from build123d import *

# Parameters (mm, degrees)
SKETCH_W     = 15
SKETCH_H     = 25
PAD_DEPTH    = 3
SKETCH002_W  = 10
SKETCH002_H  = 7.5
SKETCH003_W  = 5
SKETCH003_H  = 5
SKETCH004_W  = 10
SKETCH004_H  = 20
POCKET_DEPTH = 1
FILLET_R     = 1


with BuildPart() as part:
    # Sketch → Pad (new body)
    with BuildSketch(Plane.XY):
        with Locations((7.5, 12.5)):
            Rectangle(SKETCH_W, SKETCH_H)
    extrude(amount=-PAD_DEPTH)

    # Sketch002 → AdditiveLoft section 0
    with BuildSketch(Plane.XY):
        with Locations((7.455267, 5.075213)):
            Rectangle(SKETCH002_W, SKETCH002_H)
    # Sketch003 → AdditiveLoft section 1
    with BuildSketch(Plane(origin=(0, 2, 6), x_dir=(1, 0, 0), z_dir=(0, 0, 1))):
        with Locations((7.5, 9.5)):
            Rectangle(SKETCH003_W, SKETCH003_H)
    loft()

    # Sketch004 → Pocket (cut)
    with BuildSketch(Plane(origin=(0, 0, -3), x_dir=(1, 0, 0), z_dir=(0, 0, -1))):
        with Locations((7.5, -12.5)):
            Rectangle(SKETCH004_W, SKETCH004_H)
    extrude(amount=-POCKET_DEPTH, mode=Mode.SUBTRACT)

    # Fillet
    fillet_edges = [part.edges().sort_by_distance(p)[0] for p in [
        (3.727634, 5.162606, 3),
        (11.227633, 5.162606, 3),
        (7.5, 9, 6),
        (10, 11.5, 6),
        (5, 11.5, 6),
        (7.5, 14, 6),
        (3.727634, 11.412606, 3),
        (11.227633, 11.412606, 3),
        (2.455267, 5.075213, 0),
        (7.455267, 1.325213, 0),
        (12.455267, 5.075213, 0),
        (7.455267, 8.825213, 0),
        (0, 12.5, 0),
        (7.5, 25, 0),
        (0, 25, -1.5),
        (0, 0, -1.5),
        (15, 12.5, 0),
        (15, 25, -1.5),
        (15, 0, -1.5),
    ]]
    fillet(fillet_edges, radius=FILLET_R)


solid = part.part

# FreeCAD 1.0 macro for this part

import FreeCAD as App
import Part
import Sketcher


def edges_at(feature, points):
    """Names of the edges that pass closest to the given points."""
    edges = feature.Shape.Edges
    near = lambda p: min(range(len(edges)), key=lambda i: edges[i].distToShape(Part.Vertex(*p))[0])
    return sorted({f"Edge{near(p) + 1}" for p in points})

doc = App.newDocument("Part")
params = doc.addObject("Spreadsheet::Sheet", "Params")
for row, (alias, value) in enumerate([
    ("sketch1_width", "15 mm"),
    ("sketch1_height", "25 mm"),
    ("pad1_length", "3 mm"),
    ("sketch2_width", "10 mm"),
    ("sketch2_height", "7.5 mm"),
    ("sketch3_width", "5 mm"),
    ("sketch4_width", "10 mm"),
    ("sketch4_height", "20 mm"),
    ("pocket1_length", "1 mm"),
    ("fillet_radius", "1 mm"),
], start=1):
    params.set(f"A{row}", alias)
    params.set(f"B{row}", "=" + value)
    params.setAlias(f"B{row}", alias)

body = doc.addObject("PartDesign::Body", "Body")

# Sketch on XY plane
sketch1 = body.newObject("Sketcher::SketchObject", "Sketch")
sketch1.AttachmentSupport = (doc.getObject("XY_Plane"), [""])
sketch1.MapMode = "FlatFace"
sketch1.addGeometry(Part.LineSegment(App.Vector(0, 25, 0), App.Vector(0, 0, 0)), False)
sketch1.addGeometry(Part.LineSegment(App.Vector(0, 0, 0), App.Vector(15, 0, 0)), False)
sketch1.addGeometry(Part.LineSegment(App.Vector(15, 0, 0), App.Vector(15, 25, 0)), False)
sketch1.addGeometry(Part.LineSegment(App.Vector(15, 25, 0), App.Vector(0, 25, 0)), False)
sketch1.addConstraint(Sketcher.Constraint("Coincident", 0, 2, 1, 1))
sketch1.addConstraint(Sketcher.Constraint("Coincident", 1, 2, 2, 1))
sketch1.addConstraint(Sketcher.Constraint("Coincident", 2, 2, 3, 1))
sketch1.addConstraint(Sketcher.Constraint("Coincident", 3, 2, 0, 1))
sketch1.addConstraint(Sketcher.Constraint("Vertical", 0))
sketch1.addConstraint(Sketcher.Constraint("Horizontal", 1))
sketch1.addConstraint(Sketcher.Constraint("Vertical", 2))
sketch1.addConstraint(Sketcher.Constraint("Horizontal", 3))
sketch1.addConstraint(Sketcher.Constraint("Coincident", 0, 2, -1, 1))
sketch1.addConstraint(Sketcher.Constraint("DistanceX", 1, 1, 1, 2, 15.0))
sketch1.addConstraint(Sketcher.Constraint("DistanceY", 0, 2, 0, 1, 25.0))
sketch1.setExpression("Constraints[9]", "Params.sketch1_width")
sketch1.setExpression("Constraints[10]", "Params.sketch1_height")
pad1 = body.newObject("PartDesign::Pad", "Pad")
pad1.Profile = sketch1
pad1.setExpression("Length", "Params.pad1_length")
pad1.Reversed = True

# Sketch on XY plane
sketch2 = body.newObject("Sketcher::SketchObject", "Sketch001")
sketch2.AttachmentSupport = (doc.getObject("XY_Plane"), [""])
sketch2.MapMode = "FlatFace"
sketch2.addGeometry(Part.LineSegment(App.Vector(2, 9, 0), App.Vector(2, 1, 0)), False)
sketch2.addGeometry(Part.LineSegment(App.Vector(2, 1, 0), App.Vector(12, 1, 0)), False)
sketch2.addGeometry(Part.LineSegment(App.Vector(12, 1, 0), App.Vector(12, 9, 0)), False)
sketch2.addGeometry(Part.LineSegment(App.Vector(12, 9, 0), App.Vector(2, 9, 0)), False)
sketch2.addConstraint(Sketcher.Constraint("Coincident", 0, 2, 1, 1))
sketch2.addConstraint(Sketcher.Constraint("Coincident", 1, 2, 2, 1))
sketch2.addConstraint(Sketcher.Constraint("Coincident", 2, 2, 3, 1))
sketch2.addConstraint(Sketcher.Constraint("Coincident", 3, 2, 0, 1))
sketch2.addConstraint(Sketcher.Constraint("Vertical", 0))
sketch2.addConstraint(Sketcher.Constraint("Horizontal", 1))
sketch2.addConstraint(Sketcher.Constraint("Vertical", 2))
sketch2.addConstraint(Sketcher.Constraint("Horizontal", 3))
sketch2.addConstraint(Sketcher.Constraint("DistanceX", 1, 1, 1, 2, 10.0))
sketch2.addConstraint(Sketcher.Constraint("DistanceY", 0, 2, 0, 1, 7.5))
sketch2.addConstraint(Sketcher.Constraint("DistanceX", -1, 1, 0, 2, 2.455267))
sketch2.addConstraint(Sketcher.Constraint("DistanceY", -1, 1, 0, 2, 1.325213))
sketch2.setExpression("Constraints[8]", "Params.sketch2_width")
sketch2.setExpression("Constraints[9]", "Params.sketch2_height")

# Sketch on XY plane
sketch3 = body.newObject("Sketcher::SketchObject", "Sketch002")
sketch3.AttachmentSupport = (doc.getObject("XY_Plane"), [""])
sketch3.MapMode = "FlatFace"
sketch3.AttachmentOffset = App.Placement(App.Vector(0, 0, 6), App.Rotation())
sketch3.addGeometry(Part.LineSegment(App.Vector(5, 14, 0), App.Vector(5, 9, 0)), False)
sketch3.addGeometry(Part.LineSegment(App.Vector(5, 9, 0), App.Vector(10, 9, 0)), False)
sketch3.addGeometry(Part.LineSegment(App.Vector(10, 9, 0), App.Vector(10, 14, 0)), False)
sketch3.addGeometry(Part.LineSegment(App.Vector(10, 14, 0), App.Vector(5, 14, 0)), False)
sketch3.addConstraint(Sketcher.Constraint("Coincident", 0, 2, 1, 1))
sketch3.addConstraint(Sketcher.Constraint("Coincident", 1, 2, 2, 1))
sketch3.addConstraint(Sketcher.Constraint("Coincident", 2, 2, 3, 1))
sketch3.addConstraint(Sketcher.Constraint("Coincident", 3, 2, 0, 1))
sketch3.addConstraint(Sketcher.Constraint("Vertical", 0))
sketch3.addConstraint(Sketcher.Constraint("Horizontal", 1))
sketch3.addConstraint(Sketcher.Constraint("Vertical", 2))
sketch3.addConstraint(Sketcher.Constraint("Horizontal", 3))
sketch3.addConstraint(Sketcher.Constraint("Equal", 3, 0))
sketch3.addConstraint(Sketcher.Constraint("DistanceX", 1, 1, 1, 2, 5.0))
sketch3.addConstraint(Sketcher.Constraint("DistanceX", -1, 1, 0, 2, 5.0))
sketch3.addConstraint(Sketcher.Constraint("DistanceY", -1, 1, 0, 2, 9.0))
sketch3.setExpression("Constraints[9]", "Params.sketch3_width")

additiveloft = body.newObject("PartDesign::AdditiveLoft", "AdditiveLoft")
additiveloft.Profile = sketch2
additiveloft.Sections = [sketch3]

# Sketch on XY plane
sketch4 = body.newObject("Sketcher::SketchObject", "Sketch003")
sketch4.AttachmentSupport = (doc.getObject("XY_Plane"), [""])
sketch4.MapMode = "FlatFace"
sketch4.AttachmentOffset = App.Placement(App.Vector(0, 0, -3), App.Rotation())
sketch4.addGeometry(Part.LineSegment(App.Vector(2, 2, 0), App.Vector(2, 22, 0)), False)
sketch4.addGeometry(Part.LineSegment(App.Vector(2, 22, 0), App.Vector(12, 22, 0)), False)
sketch4.addGeometry(Part.LineSegment(App.Vector(12, 22, 0), App.Vector(12, 2, 0)), False)
sketch4.addGeometry(Part.LineSegment(App.Vector(12, 2, 0), App.Vector(2, 2, 0)), False)
sketch4.addConstraint(Sketcher.Constraint("Coincident", 0, 2, 1, 1))
sketch4.addConstraint(Sketcher.Constraint("Coincident", 1, 2, 2, 1))
sketch4.addConstraint(Sketcher.Constraint("Coincident", 2, 2, 3, 1))
sketch4.addConstraint(Sketcher.Constraint("Coincident", 3, 2, 0, 1))
sketch4.addConstraint(Sketcher.Constraint("Vertical", 0))
sketch4.addConstraint(Sketcher.Constraint("Horizontal", 1))
sketch4.addConstraint(Sketcher.Constraint("Vertical", 2))
sketch4.addConstraint(Sketcher.Constraint("Horizontal", 3))
sketch4.addConstraint(Sketcher.Constraint("DistanceX", 1, 1, 1, 2, 10.0))
sketch4.addConstraint(Sketcher.Constraint("DistanceY", 0, 1, 0, 2, 20.0))
sketch4.addConstraint(Sketcher.Constraint("DistanceX", -1, 1, 0, 2, 2.5))
sketch4.addConstraint(Sketcher.Constraint("DistanceY", -1, 1, 0, 2, 22.5))
sketch4.setExpression("Constraints[8]", "Params.sketch4_width")
sketch4.setExpression("Constraints[9]", "Params.sketch4_height")
pocket1 = body.newObject("PartDesign::Pocket", "Pocket")
pocket1.Profile = sketch4
pocket1.setExpression("Length", "Params.pocket1_length")
pocket1.Reversed = True
doc.recompute()

fillet = body.newObject("PartDesign::Fillet", "Fillet")
fillet.Base = (pocket1, edges_at(pocket1, [
    (3.728, 5.163, 3),
    (11.228, 5.163, 3),
    (7.5, 9, 6),
    (10, 11.5, 6),
    (5, 11.5, 6),
    (7.5, 14, 6),
    (3.728, 11.413, 3),
    (11.228, 11.413, 3),
    (2.455, 5.075, 0),
    (7.455, 1.325, 0),
    (12.455, 5.075, 0),
    (7.455, 8.825, 0),
    (0, 12.5, 0),
    (7.5, 25, 0),
    (0, 25, -1.5),
    (0, 0, -1.5),
    (15, 12.5, 0),
    (15, 25, -1.5),
    (15, 0, -1.5),
]))
fillet.setExpression("Radius", "Params.fillet_radius")

doc.recompute()
